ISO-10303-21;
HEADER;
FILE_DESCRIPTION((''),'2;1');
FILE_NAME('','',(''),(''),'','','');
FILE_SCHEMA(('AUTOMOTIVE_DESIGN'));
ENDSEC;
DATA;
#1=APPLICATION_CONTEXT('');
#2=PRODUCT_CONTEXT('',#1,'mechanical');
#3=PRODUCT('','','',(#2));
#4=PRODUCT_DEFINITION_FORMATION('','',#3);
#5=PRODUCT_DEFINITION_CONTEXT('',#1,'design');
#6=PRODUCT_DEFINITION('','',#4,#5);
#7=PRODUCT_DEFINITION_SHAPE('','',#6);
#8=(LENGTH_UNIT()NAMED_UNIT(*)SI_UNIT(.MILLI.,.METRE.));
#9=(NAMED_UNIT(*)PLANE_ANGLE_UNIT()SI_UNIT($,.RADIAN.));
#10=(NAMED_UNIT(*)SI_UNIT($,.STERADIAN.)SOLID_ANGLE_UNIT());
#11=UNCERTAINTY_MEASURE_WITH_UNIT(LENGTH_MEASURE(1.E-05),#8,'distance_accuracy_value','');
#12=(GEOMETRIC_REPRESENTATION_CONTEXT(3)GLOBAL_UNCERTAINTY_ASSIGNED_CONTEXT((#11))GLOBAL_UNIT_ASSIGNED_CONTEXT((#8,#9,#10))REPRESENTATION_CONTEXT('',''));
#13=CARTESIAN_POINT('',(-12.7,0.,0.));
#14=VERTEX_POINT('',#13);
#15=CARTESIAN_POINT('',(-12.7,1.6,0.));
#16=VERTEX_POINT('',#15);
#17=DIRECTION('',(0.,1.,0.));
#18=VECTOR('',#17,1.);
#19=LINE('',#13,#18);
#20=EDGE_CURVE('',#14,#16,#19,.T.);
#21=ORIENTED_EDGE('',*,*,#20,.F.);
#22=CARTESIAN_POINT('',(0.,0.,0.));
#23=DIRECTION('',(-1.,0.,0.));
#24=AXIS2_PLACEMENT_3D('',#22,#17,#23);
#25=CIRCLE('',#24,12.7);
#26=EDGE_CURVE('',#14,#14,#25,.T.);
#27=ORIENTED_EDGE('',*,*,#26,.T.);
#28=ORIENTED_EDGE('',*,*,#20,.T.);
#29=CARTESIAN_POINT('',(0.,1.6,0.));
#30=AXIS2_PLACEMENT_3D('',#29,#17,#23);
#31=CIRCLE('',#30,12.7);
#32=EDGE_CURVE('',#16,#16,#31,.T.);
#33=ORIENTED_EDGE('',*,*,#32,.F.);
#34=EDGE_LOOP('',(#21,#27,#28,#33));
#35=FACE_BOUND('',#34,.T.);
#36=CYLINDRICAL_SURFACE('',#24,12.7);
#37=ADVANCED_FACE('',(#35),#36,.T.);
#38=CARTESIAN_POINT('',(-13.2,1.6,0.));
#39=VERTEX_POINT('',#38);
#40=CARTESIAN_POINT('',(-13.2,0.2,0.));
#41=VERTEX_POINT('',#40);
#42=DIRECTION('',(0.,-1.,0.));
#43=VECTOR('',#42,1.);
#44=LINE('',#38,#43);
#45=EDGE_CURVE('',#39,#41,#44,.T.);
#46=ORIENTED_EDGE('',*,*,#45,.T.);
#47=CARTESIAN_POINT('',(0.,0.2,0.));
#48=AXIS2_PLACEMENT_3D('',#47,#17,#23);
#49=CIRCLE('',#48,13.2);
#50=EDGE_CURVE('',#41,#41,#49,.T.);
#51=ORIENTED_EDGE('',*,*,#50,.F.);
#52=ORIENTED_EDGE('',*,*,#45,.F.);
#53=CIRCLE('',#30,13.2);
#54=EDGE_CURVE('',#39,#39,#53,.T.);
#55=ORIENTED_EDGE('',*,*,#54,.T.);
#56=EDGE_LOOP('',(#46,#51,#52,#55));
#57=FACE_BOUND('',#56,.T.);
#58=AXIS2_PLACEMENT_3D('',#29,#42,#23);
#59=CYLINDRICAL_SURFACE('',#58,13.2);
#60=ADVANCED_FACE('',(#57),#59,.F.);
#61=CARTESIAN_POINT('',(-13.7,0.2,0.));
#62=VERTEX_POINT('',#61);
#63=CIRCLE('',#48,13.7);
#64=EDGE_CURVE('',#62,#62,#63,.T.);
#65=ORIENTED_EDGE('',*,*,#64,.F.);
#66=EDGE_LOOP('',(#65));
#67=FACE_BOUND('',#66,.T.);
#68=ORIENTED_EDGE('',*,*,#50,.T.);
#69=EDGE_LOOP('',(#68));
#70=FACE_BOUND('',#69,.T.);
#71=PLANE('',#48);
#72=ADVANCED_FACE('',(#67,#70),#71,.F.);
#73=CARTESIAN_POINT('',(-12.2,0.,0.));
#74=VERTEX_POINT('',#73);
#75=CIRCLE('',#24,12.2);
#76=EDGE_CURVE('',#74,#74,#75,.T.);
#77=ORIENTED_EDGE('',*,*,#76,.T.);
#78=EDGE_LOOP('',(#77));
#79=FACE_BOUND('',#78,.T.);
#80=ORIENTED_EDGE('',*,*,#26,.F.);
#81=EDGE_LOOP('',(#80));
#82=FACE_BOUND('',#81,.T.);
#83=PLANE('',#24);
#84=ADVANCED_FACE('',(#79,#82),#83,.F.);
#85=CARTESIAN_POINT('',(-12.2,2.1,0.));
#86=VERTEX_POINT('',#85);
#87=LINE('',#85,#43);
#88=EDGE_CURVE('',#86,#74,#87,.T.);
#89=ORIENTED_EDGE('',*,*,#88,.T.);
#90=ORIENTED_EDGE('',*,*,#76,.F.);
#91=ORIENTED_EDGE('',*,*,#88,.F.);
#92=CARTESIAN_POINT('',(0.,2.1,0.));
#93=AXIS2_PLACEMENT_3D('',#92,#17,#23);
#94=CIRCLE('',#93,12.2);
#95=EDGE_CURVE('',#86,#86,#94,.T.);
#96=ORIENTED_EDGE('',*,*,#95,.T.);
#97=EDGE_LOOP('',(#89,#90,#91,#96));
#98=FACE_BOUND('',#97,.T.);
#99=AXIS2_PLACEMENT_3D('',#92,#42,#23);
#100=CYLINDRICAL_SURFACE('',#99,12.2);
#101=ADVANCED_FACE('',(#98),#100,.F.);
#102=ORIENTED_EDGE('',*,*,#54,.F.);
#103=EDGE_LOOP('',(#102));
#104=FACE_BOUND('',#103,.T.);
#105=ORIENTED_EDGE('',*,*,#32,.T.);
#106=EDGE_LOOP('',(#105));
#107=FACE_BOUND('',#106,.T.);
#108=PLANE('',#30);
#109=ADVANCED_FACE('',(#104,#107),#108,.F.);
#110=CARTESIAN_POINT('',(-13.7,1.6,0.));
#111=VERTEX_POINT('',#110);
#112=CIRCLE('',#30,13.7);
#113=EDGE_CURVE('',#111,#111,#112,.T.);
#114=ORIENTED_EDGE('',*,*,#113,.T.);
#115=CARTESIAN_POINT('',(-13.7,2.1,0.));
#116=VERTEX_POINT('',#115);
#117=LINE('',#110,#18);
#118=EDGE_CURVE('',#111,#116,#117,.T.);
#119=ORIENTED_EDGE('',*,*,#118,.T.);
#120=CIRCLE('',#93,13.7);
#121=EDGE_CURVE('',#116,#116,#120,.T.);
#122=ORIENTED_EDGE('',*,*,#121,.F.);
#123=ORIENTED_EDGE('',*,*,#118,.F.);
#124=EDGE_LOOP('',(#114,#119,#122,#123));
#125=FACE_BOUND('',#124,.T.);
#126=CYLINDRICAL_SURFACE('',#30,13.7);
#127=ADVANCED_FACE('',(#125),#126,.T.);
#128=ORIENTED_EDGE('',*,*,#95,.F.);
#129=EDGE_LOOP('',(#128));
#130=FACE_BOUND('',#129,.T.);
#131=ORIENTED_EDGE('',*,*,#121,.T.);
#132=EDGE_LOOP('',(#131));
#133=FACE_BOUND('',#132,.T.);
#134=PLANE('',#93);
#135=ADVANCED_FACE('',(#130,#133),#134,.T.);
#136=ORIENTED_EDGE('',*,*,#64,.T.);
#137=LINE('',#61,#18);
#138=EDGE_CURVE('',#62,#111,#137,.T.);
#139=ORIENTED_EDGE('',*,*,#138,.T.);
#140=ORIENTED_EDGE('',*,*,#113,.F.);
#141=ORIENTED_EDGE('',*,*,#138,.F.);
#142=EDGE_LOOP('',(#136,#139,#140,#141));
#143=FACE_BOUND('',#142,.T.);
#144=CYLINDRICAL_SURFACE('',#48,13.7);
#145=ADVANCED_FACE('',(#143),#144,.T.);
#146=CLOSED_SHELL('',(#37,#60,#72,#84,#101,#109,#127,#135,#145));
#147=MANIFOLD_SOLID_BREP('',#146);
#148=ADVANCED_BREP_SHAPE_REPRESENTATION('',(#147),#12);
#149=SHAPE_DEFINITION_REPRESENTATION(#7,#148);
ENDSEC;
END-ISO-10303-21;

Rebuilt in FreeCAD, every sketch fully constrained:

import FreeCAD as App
import Part
import Sketcher
Q = App.Units.Quantity

doc = App.newDocument("Part")
params = doc.addObject("Spreadsheet::Sheet", "Params")
for row, (alias, value) in enumerate([
    ("sketch1_width", "0.5 mm"),
    ("sketch1_height", "2.1 mm"),
    ("sketch1_height2", "1.9 mm"),
    ("sketch1_height3", "1.4 mm"),
    ("revolution_angle", "360 deg"),
], start=1):
    params.set(f"A{row}", alias)
    params.set(f"B{row}", "=" + value)
    params.setAlias(f"B{row}", alias)

body = doc.addObject("PartDesign::Body", "Body")

sketch1 = body.newObject("Sketcher::SketchObject", "Sketch")
sketch1.AttachmentSupport = (doc.getObject("XY_Plane"), [""])
sketch1.MapMode = "FlatFace"
sketch1.addGeometry(Part.LineSegment(App.Vector(-12.7, 0, 0), App.Vector(-12.2, 0, 0)), False)
sketch1.addGeometry(Part.LineSegment(App.Vector(-12.2, 0, 0), App.Vector(-12.2, 2.1, 0)), False)
sketch1.addGeometry(Part.LineSegment(App.Vector(-12.2, 2.1, 0), App.Vector(-13.7, 2.1, 0)), False)
sketch1.addGeometry(Part.LineSegment(App.Vector(-13.7, 2.1, 0), App.Vector(-13.7, 0.2, 0)), False)
sketch1.addGeometry(Part.LineSegment(App.Vector(-13.7, 0.2, 0), App.Vector(-13.2, 0.2, 0)), False)
sketch1.addGeometry(Part.LineSegment(App.Vector(-13.2, 0.2, 0), App.Vector(-13.2, 1.6, 0)), False)
sketch1.addGeometry(Part.LineSegment(App.Vector(-13.2, 1.6, 0), App.Vector(-12.7, 1.6, 0)), False)
sketch1.addGeometry(Part.LineSegment(App.Vector(-12.7, 1.6, 0), App.Vector(-12.7, 0, 0)), False)
sketch1.addConstraint(Sketcher.Constraint("Coincident", 0, 2, 1, 1))
sketch1.addConstraint(Sketcher.Constraint("Coincident", 1, 2, 2, 1))
sketch1.addConstraint(Sketcher.Constraint("Coincident", 2, 2, 3, 1))
sketch1.addConstraint(Sketcher.Constraint("Coincident", 3, 2, 4, 1))
sketch1.addConstraint(Sketcher.Constraint("Coincident", 4, 2, 5, 1))
sketch1.addConstraint(Sketcher.Constraint("Coincident", 5, 2, 6, 1))
sketch1.addConstraint(Sketcher.Constraint("Coincident", 6, 2, 7, 1))
sketch1.addConstraint(Sketcher.Constraint("Coincident", 7, 2, 0, 1))
sketch1.addConstraint(Sketcher.Constraint("Horizontal", 0))
sketch1.addConstraint(Sketcher.Constraint("Vertical", 1))
sketch1.addConstraint(Sketcher.Constraint("Horizontal", 2))
sketch1.addConstraint(Sketcher.Constraint("Vertical", 3))
sketch1.addConstraint(Sketcher.Constraint("Horizontal", 4))
sketch1.addConstraint(Sketcher.Constraint("Vertical", 5))
sketch1.addConstraint(Sketcher.Constraint("Horizontal", 6))
sketch1.addConstraint(Sketcher.Constraint("Vertical", 7))
sketch1.addConstraint(Sketcher.Constraint("PointOnObject", 0, 2, -1))
sketch1.addConstraint(Sketcher.Constraint("Equal", 0, 4))
sketch1.addConstraint(Sketcher.Constraint("Equal", 4, 6))
sketch1.addConstraint(Sketcher.Constraint("DistanceX", 0, 1, 0, 2, Q("0.5 mm")))
sketch1.addConstraint(Sketcher.Constraint("DistanceY", 1, 1, 1, 2, Q("2.1 mm")))
sketch1.addConstraint(Sketcher.Constraint("DistanceY", 3, 2, 3, 1, Q("1.9 mm")))
sketch1.addConstraint(Sketcher.Constraint("DistanceY", 5, 1, 5, 2, Q("1.4 mm")))
sketch1.addConstraint(Sketcher.Constraint("DistanceX", 0, 2, -1, 1, Q("12.2 mm")))
sketch1.setExpression("Constraints[19]", "Params.sketch1_width")
sketch1.setExpression("Constraints[20]", "Params.sketch1_height")
sketch1.setExpression("Constraints[21]", "Params.sketch1_height2")
sketch1.setExpression("Constraints[22]", "Params.sketch1_height3")
revolution = body.newObject("PartDesign::Revolution", "Revolution")
revolution.Profile = sketch1
revolution.ReferenceAxis = (sketch1, ["V_Axis"])
revolution.setExpression("Angle", "Params.revolution_angle")

doc.recompute()
